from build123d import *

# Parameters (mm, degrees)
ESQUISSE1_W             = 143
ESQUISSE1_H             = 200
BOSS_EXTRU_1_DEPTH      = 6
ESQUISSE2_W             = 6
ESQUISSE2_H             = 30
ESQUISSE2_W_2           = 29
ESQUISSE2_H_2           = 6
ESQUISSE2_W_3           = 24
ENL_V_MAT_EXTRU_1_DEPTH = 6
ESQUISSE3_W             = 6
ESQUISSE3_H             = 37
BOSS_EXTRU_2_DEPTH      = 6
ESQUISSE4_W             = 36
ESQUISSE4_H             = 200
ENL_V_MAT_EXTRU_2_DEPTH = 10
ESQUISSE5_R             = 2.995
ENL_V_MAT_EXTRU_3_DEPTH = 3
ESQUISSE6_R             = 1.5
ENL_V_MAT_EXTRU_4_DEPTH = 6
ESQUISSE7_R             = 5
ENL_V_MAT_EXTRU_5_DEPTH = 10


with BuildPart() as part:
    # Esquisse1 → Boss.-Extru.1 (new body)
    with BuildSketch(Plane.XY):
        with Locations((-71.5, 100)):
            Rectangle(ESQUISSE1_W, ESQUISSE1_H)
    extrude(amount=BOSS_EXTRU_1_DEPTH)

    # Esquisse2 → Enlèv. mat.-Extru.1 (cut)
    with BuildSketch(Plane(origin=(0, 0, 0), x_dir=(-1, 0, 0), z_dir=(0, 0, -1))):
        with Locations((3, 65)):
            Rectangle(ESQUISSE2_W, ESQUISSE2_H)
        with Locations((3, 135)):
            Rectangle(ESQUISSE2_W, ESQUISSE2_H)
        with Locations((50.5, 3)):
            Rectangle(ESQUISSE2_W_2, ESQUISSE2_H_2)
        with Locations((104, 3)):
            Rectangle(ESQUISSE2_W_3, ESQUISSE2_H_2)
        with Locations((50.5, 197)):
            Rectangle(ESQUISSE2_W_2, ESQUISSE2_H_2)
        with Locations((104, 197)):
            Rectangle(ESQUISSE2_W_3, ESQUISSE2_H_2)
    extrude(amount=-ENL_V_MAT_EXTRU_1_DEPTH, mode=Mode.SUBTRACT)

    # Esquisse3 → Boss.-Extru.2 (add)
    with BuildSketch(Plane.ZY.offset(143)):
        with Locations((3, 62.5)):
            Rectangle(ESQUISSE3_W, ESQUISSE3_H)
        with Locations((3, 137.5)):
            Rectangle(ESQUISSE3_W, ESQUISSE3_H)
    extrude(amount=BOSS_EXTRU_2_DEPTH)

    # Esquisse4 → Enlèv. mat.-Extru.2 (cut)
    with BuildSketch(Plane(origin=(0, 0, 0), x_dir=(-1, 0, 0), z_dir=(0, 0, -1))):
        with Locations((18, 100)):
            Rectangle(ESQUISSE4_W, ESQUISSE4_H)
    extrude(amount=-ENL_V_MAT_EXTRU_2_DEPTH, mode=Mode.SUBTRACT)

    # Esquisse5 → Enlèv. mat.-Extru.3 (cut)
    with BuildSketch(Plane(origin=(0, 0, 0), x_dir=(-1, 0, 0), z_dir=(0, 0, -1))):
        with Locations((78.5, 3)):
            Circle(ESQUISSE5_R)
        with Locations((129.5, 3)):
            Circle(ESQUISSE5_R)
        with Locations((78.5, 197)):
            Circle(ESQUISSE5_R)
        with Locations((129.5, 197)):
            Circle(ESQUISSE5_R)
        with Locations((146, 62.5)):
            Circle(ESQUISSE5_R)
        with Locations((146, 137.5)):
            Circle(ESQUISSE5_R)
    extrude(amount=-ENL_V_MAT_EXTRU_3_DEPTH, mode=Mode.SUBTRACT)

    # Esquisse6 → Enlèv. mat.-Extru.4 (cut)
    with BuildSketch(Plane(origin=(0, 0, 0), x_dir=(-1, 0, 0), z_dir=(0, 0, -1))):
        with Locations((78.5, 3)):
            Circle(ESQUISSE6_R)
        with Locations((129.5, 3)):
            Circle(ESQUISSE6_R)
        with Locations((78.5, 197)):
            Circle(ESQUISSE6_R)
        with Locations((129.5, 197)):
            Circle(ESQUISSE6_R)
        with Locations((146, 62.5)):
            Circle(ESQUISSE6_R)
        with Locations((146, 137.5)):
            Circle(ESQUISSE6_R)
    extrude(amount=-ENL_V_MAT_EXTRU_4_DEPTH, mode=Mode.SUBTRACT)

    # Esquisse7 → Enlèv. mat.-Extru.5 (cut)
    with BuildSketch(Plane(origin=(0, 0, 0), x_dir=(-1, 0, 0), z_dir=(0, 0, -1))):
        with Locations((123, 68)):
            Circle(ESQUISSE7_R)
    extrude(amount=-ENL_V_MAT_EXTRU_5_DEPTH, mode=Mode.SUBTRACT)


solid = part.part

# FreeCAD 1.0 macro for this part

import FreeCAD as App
import Part
import Sketcher
from FreeCAD import Vector


def add_polygon(sketch, points):
    """Adds a closed chain of lines whose ends are joined by coincident constraints."""
    first, n = sketch.GeometryCount, len(points)
    for a, b in zip(points, points[1:] + points[:1]):
        sketch.addGeometry(Part.LineSegment(App.Vector(*a, 0), App.Vector(*b, 0)), False)
    for i in range(n):
        sketch.addConstraint(Sketcher.Constraint("Coincident", first + i, 2, first + (i + 1) % n, 1))

doc = App.newDocument("Part")
body = doc.addObject("PartDesign::Body", "Body")

# Sketch on XY plane
sketch1 = doc.addObject("Sketcher::SketchObject", "Sketch")
body.addObject(sketch1)
sketch1.AttachmentSupport = (doc.XY_Plane, [""])
sketch1.MapMode = "FlatFace"
add_polygon(sketch1, [(-143, 200), (-143, 0), (0, 0), (0, 200)])  # lines 0-3
sketch1.addConstraint([
    Sketcher.Constraint("Vertical", 0),
    Sketcher.Constraint("Horizontal", 1),
    Sketcher.Constraint("Vertical", 2),
    Sketcher.Constraint("Horizontal", 3),
    Sketcher.Constraint("Coincident", 1, 2, -1, 1),
    Sketcher.Constraint("DistanceX", 1, 1, 1, 2, 143.0),
    Sketcher.Constraint("DistanceY", 0, 2, 0, 1, 200.0),
])
pad1 = doc.addObject("PartDesign::Pad", "Pad")
body.addObject(pad1)
pad1.Profile = sketch1
pad1.Length = 6

# Sketch on XY plane
sketch2 = doc.addObject("Sketcher::SketchObject", "Sketch001")
body.addObject(sketch2)
sketch2.AttachmentSupport = (doc.XY_Plane, [""])
sketch2.MapMode = "FlatFace"
add_polygon(sketch2, [(0, 80), (0, 50), (-6, 50), (-6, 80)])  # lines 0-3
add_polygon(sketch2, [(0, 150), (0, 120), (-6, 120), (-6, 150)])  # lines 4-7
add_polygon(sketch2, [(-36, 6), (-36, 0), (-65, 0), (-65, 6)])  # lines 8-11
add_polygon(sketch2, [(-92, 6), (-92, 0), (-116, 0), (-116, 6)])  # lines 12-15
add_polygon(sketch2, [(-36, 200), (-36, 194), (-65, 194), (-65, 200)])  # lines 16-19
add_polygon(sketch2, [(-92, 200), (-92, 194), (-116, 194), (-116, 200)])  # lines 20-23
sketch2.addConstraint([
    Sketcher.Constraint("Vertical", 0),
    Sketcher.Constraint("Horizontal", 1),
    Sketcher.Constraint("Vertical", 2),
    Sketcher.Constraint("Horizontal", 3),
    Sketcher.Constraint("Vertical", 4),
    Sketcher.Constraint("Horizontal", 5),
    Sketcher.Constraint("Vertical", 6),
    Sketcher.Constraint("Horizontal", 7),
    Sketcher.Constraint("Vertical", 8),
    Sketcher.Constraint("Horizontal", 9),
    Sketcher.Constraint("Vertical", 10),
    Sketcher.Constraint("Horizontal", 11),
    Sketcher.Constraint("Vertical", 12),
    Sketcher.Constraint("Horizontal", 13),
    Sketcher.Constraint("Vertical", 14),
    Sketcher.Constraint("Horizontal", 15),
    Sketcher.Constraint("Vertical", 16),
    Sketcher.Constraint("Horizontal", 17),
    Sketcher.Constraint("Vertical", 18),
    Sketcher.Constraint("Horizontal", 19),
    Sketcher.Constraint("Vertical", 20),
    Sketcher.Constraint("Horizontal", 21),
    Sketcher.Constraint("Vertical", 22),
    Sketcher.Constraint("Horizontal", 23),
    Sketcher.Constraint("PointOnObject", 0, 2, -2),
    Sketcher.Constraint("PointOnObject", 4, 2, -2),
    Sketcher.Constraint("PointOnObject", 8, 2, -1),
    Sketcher.Constraint("PointOnObject", 12, 2, -1),
    Sketcher.Constraint("Horizontal", 11, 2, 14, 2),
    Sketcher.Constraint("Horizontal", 17, 2, 20, 2),
    Sketcher.Constraint("Horizontal", 19, 2, 22, 2),
    Sketcher.Constraint("Vertical", 2, 2, 5, 2),
    Sketcher.Constraint("Vertical", 11, 2, 16, 2),
    Sketcher.Constraint("Vertical", 10, 2, 17, 2),
    Sketcher.Constraint("Vertical", 15, 2, 20, 2),
    Sketcher.Constraint("Vertical", 14, 2, 21, 2),
    Sketcher.Constraint("Equal", 2, 4),
    Sketcher.Constraint("Equal", 7, 8),
    Sketcher.Constraint("Equal", 14, 16),
    Sketcher.Constraint("DistanceX", 1, 2, 1, 1, 6.0),
    Sketcher.Constraint("DistanceX", 9, 2, 9, 1, 29.0),
    Sketcher.Constraint("DistanceX", 13, 2, 13, 1, 24.0),
    Sketcher.Constraint("DistanceY", 0, 2, 0, 1, 30.0),
    Sketcher.Constraint("DistanceY", -1, 1, 0, 2, 50.0),
    Sketcher.Constraint("DistanceY", -1, 1, 4, 2, 120.0),
    Sketcher.Constraint("DistanceX", 8, 2, -1, 1, 36.0),
    Sketcher.Constraint("DistanceX", 12, 2, -1, 1, 92.0),
    Sketcher.Constraint("DistanceY", -1, 1, 16, 2, 194.0),
])
pocket1 = doc.addObject("PartDesign::Pocket", "Pocket")
body.addObject(pocket1)
pocket1.Profile = sketch2
pocket1.Length = 6
pocket1.Reversed = True

# Sketch on YZ plane
sketch3 = doc.addObject("Sketcher::SketchObject", "Sketch002")
body.addObject(sketch3)
sketch3.AttachmentSupport = (doc.YZ_Plane, [""])
sketch3.MapMode = "FlatFace"
sketch3.AttachmentOffset = App.Placement(Vector(0, 0, -143), App.Rotation())
add_polygon(sketch3, [(81, 0), (44, 0), (44, 6), (81, 6)])  # lines 0-3
add_polygon(sketch3, [(156, 0), (119, 0), (119, 6), (156, 6)])  # lines 4-7
sketch3.addConstraint([
    Sketcher.Constraint("Horizontal", 0),
    Sketcher.Constraint("Vertical", 1),
    Sketcher.Constraint("Horizontal", 2),
    Sketcher.Constraint("Vertical", 3),
    Sketcher.Constraint("Horizontal", 4),
    Sketcher.Constraint("Vertical", 5),
    Sketcher.Constraint("Horizontal", 6),
    Sketcher.Constraint("Vertical", 7),
    Sketcher.Constraint("PointOnObject", 0, 2, -1),
    Sketcher.Constraint("PointOnObject", 4, 2, -1),
    Sketcher.Constraint("Horizontal", 2, 2, 5, 2),
    Sketcher.Constraint("Equal", 2, 4),
    Sketcher.Constraint("DistanceX", 0, 2, 0, 1, 37.0),
    Sketcher.Constraint("DistanceY", 1, 1, 1, 2, 6.0),
    Sketcher.Constraint("DistanceX", -1, 1, 0, 2, 44.0),
    Sketcher.Constraint("DistanceX", -1, 1, 4, 2, 119.0),
])
pad2 = doc.addObject("PartDesign::Pad", "Pad001")
body.addObject(pad2)
pad2.Profile = sketch3
pad2.Length = 6
pad2.Reversed = True

# Sketch on XY plane
sketch4 = doc.addObject("Sketcher::SketchObject", "Sketch003")
body.addObject(sketch4)
sketch4.AttachmentSupport = (doc.XY_Plane, [""])
sketch4.MapMode = "FlatFace"
add_polygon(sketch4, [(0, 200), (0, 0), (-36, 0), (-36, 200)])  # lines 0-3
sketch4.addConstraint([
    Sketcher.Constraint("Vertical", 0),
    Sketcher.Constraint("Horizontal", 1),
    Sketcher.Constraint("Vertical", 2),
    Sketcher.Constraint("Horizontal", 3),
    Sketcher.Constraint("Coincident", 0, 2, -1, 1),
    Sketcher.Constraint("DistanceX", 1, 2, 1, 1, 36.0),
    Sketcher.Constraint("DistanceY", 0, 2, 0, 1, 200.0),
])
pocket2 = doc.addObject("PartDesign::Pocket", "Pocket001")
body.addObject(pocket2)
pocket2.Profile = sketch4
pocket2.Length = 10
pocket2.Reversed = True

# Sketch on XY plane
sketch5 = doc.addObject("Sketcher::SketchObject", "Sketch004")
body.addObject(sketch5)
sketch5.AttachmentSupport = (doc.XY_Plane, [""])
sketch5.MapMode = "FlatFace"
sketch5.addGeometry([
    Part.Circle(Vector(-78.5, 3, 0), Vector(0, 0, 1), 3),  # 0
    Part.Circle(Vector(-129.5, 3, 0), Vector(0, 0, 1), 3),  # 1
    Part.Circle(Vector(-78.5, 197, 0), Vector(0, 0, 1), 3),  # 2
    Part.Circle(Vector(-129.5, 197, 0), Vector(0, 0, 1), 3),  # 3
    Part.Circle(Vector(-146, 62.5, 0), Vector(0, 0, 1), 3),  # 4
    Part.Circle(Vector(-146, 137.5, 0), Vector(0, 0, 1), 3),  # 5
], False)
sketch5.addConstraint([
    Sketcher.Constraint("Equal", 0, 1),
    Sketcher.Constraint("Equal", 1, 2),
    Sketcher.Constraint("Equal", 2, 3),
    Sketcher.Constraint("Equal", 3, 4),
    Sketcher.Constraint("Equal", 4, 5),
    Sketcher.Constraint("Horizontal", 0, 3, 1, 3),
    Sketcher.Constraint("Horizontal", 2, 3, 3, 3),
    Sketcher.Constraint("Vertical", 0, 3, 2, 3),
    Sketcher.Constraint("Vertical", 1, 3, 3, 3),
    Sketcher.Constraint("Vertical", 4, 3, 5, 3),
    Sketcher.Constraint("Diameter", 0, 5.99),
    Sketcher.Constraint("DistanceY", -1, 1, 0, 3, 3.0),
    Sketcher.Constraint("DistanceY", -1, 1, 2, 3, 197.0),
    Sketcher.Constraint("DistanceX", 4, 3, -1, 1, 146.0),
    Sketcher.Constraint("DistanceX", 1, 3, 0, 3, 51.0),
    Sketcher.Constraint("DistanceY", 4, 3, 5, 3, 75.0),
    Sketcher.Constraint("DistanceX", 0, 3, -1, 1, 78.5),
    Sketcher.Constraint("DistanceY", -1, 1, 4, 3, 62.5),
])
pocket3 = doc.addObject("PartDesign::Pocket", "Pocket002")
body.addObject(pocket3)
pocket3.Profile = sketch5
pocket3.Length = 3
pocket3.Reversed = True

# Sketch on XY plane
sketch6 = doc.addObject("Sketcher::SketchObject", "Sketch005")
body.addObject(sketch6)
sketch6.AttachmentSupport = (doc.XY_Plane, [""])
sketch6.MapMode = "FlatFace"
sketch6.addGeometry([
    Part.Circle(Vector(-78.5, 3, 0), Vector(0, 0, 1), 1.5),  # 0
    Part.Circle(Vector(-129.5, 3, 0), Vector(0, 0, 1), 1.5),  # 1
    Part.Circle(Vector(-78.5, 197, 0), Vector(0, 0, 1), 1.5),  # 2
    Part.Circle(Vector(-129.5, 197, 0), Vector(0, 0, 1), 1.5),  # 3
    Part.Circle(Vector(-146, 62.5, 0), Vector(0, 0, 1), 1.5),  # 4
    Part.Circle(Vector(-146, 137.5, 0), Vector(0, 0, 1), 1.5),  # 5
], False)
sketch6.addConstraint([
    Sketcher.Constraint("Equal", 0, 1),
    Sketcher.Constraint("Equal", 1, 2),
    Sketcher.Constraint("Equal", 2, 3),
    Sketcher.Constraint("Equal", 3, 4),
    Sketcher.Constraint("Equal", 4, 5),
    Sketcher.Constraint("Horizontal", 0, 3, 1, 3),
    Sketcher.Constraint("Horizontal", 2, 3, 3, 3),
    Sketcher.Constraint("Vertical", 0, 3, 2, 3),
    Sketcher.Constraint("Vertical", 1, 3, 3, 3),
    Sketcher.Constraint("Vertical", 4, 3, 5, 3),
    Sketcher.Constraint("Diameter", 0, 3.0),
    Sketcher.Constraint("DistanceY", -1, 1, 0, 3, 3.0),
    Sketcher.Constraint("DistanceY", -1, 1, 2, 3, 197.0),
    Sketcher.Constraint("DistanceX", 4, 3, -1, 1, 146.0),
    Sketcher.Constraint("DistanceX", 1, 3, 0, 3, 51.0),
    Sketcher.Constraint("DistanceY", 4, 3, 5, 3, 75.0),
    Sketcher.Constraint("DistanceX", 0, 3, -1, 1, 78.5),
    Sketcher.Constraint("DistanceY", -1, 1, 4, 3, 62.5),
])
pocket4 = doc.addObject("PartDesign::Pocket", "Pocket003")
body.addObject(pocket4)
pocket4.Profile = sketch6
pocket4.Length = 6
pocket4.Reversed = True

# Sketch on XY plane
sketch7 = doc.addObject("Sketcher::SketchObject", "Sketch006")
body.addObject(sketch7)
sketch7.AttachmentSupport = (doc.XY_Plane, [""])
sketch7.MapMode = "FlatFace"
sketch7.addGeometry(Part.Circle(Vector(-123, 68, 0), Vector(0, 0, 1), 5), False)
sketch7.addConstraint([
    Sketcher.Constraint("Diameter", 0, 10.0),
    Sketcher.Constraint("DistanceX", 0, 3, -1, 1, 123.0),
    Sketcher.Constraint("DistanceY", -1, 1, 0, 3, 68.0),
])
pocket5 = doc.addObject("PartDesign::Pocket", "Pocket004")
body.addObject(pocket5)
pocket5.Profile = sketch7
pocket5.Length = 10
pocket5.Reversed = True

doc.recompute()
